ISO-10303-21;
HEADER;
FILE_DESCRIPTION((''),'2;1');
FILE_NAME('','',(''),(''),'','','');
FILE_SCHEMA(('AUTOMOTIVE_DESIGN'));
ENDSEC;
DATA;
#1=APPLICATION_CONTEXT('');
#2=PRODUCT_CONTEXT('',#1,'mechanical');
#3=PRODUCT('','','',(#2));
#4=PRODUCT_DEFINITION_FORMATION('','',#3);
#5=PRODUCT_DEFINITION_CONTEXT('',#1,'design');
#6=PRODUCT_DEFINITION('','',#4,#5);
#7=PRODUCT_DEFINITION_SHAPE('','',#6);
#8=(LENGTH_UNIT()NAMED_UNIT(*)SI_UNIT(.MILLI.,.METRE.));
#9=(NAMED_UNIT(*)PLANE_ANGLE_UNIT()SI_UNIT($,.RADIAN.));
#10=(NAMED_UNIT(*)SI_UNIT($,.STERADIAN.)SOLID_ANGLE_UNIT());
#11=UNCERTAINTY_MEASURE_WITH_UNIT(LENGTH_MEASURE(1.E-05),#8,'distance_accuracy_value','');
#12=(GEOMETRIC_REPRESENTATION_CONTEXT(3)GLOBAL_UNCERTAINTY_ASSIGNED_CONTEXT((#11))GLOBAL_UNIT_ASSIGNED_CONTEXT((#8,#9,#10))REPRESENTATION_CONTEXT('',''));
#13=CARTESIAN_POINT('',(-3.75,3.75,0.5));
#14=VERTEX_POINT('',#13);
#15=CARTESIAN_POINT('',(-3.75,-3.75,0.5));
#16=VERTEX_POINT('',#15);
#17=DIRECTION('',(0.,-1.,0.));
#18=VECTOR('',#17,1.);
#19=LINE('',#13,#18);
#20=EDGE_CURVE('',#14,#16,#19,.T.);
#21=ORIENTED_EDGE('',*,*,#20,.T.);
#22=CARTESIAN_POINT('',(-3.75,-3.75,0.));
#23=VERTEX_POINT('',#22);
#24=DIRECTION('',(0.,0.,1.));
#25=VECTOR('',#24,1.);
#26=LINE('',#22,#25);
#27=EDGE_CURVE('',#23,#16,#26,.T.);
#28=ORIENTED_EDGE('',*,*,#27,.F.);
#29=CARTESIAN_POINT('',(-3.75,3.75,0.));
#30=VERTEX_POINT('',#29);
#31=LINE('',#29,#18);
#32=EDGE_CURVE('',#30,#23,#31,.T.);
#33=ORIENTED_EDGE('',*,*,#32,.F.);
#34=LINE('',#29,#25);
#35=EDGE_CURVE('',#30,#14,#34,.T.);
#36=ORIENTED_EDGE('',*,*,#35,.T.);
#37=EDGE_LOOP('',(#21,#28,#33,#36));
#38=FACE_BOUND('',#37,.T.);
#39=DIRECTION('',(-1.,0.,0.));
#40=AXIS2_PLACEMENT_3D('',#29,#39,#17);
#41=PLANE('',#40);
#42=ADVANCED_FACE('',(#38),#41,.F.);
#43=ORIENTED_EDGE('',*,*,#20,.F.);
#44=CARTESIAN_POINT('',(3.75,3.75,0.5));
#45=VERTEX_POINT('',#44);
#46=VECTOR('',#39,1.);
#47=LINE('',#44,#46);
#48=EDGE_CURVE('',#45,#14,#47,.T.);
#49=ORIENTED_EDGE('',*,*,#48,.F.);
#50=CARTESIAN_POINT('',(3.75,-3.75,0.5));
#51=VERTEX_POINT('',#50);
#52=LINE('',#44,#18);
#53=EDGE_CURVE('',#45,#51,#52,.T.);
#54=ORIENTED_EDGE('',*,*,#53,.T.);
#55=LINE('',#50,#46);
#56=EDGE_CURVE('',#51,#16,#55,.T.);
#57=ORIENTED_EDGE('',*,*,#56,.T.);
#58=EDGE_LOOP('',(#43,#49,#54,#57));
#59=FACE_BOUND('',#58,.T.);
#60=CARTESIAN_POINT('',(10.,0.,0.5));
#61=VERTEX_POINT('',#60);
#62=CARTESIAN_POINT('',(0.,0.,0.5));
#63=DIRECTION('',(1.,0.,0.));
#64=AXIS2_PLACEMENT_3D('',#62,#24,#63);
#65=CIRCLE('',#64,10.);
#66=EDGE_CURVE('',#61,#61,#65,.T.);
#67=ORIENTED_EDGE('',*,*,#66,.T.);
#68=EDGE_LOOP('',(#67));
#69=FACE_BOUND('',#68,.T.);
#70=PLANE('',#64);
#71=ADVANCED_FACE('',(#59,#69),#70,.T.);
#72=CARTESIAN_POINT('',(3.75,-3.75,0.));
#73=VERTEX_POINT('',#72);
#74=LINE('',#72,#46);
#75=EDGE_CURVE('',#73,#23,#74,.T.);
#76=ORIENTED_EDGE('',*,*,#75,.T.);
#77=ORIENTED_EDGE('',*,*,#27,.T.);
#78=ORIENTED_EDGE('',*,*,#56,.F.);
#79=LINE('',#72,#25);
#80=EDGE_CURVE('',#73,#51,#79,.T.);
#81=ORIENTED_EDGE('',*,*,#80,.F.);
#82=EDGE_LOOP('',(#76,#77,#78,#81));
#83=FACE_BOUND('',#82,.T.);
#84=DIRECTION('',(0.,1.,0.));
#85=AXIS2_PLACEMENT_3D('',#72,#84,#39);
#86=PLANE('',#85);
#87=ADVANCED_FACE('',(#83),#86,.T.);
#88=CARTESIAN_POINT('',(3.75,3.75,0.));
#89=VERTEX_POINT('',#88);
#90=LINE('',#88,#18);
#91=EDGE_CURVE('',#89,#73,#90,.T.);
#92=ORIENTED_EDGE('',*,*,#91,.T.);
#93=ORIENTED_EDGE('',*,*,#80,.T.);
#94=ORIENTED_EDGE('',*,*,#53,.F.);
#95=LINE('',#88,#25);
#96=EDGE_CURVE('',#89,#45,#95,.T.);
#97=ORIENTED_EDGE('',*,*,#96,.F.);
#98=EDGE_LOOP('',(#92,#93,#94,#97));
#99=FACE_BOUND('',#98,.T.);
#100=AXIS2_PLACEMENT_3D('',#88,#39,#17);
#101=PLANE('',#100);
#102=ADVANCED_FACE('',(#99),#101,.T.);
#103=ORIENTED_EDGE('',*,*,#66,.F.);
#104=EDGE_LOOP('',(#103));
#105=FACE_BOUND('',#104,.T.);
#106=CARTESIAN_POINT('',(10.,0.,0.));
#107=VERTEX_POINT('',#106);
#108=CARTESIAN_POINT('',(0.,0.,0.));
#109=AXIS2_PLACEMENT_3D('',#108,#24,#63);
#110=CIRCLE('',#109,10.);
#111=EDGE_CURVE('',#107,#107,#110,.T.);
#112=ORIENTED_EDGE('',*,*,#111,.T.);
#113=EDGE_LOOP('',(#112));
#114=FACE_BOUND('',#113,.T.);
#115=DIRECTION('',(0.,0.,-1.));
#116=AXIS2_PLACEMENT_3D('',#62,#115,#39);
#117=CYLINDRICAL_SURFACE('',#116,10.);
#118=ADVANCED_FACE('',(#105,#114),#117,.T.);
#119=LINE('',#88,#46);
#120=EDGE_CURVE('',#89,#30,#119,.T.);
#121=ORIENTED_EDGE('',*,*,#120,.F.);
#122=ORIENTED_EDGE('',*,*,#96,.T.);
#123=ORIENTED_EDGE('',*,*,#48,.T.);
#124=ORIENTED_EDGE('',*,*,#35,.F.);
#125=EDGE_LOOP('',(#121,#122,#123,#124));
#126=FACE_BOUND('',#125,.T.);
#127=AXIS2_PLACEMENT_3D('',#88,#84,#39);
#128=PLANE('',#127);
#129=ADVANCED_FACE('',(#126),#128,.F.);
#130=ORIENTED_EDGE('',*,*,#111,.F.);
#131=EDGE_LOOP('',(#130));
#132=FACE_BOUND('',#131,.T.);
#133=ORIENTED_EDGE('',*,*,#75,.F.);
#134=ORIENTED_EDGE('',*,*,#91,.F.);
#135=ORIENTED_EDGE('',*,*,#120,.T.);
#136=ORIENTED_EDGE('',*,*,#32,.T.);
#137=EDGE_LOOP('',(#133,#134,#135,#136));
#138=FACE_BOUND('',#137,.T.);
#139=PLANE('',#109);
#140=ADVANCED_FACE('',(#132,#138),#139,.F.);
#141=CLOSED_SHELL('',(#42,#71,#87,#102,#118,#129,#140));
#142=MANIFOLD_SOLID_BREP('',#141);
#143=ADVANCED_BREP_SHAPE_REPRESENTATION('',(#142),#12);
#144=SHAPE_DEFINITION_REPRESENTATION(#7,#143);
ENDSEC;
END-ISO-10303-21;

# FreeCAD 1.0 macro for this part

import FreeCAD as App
import Part
import Sketcher

V = App.Vector


def add_polygon(sketch, points):
    """Adds a closed chain of lines whose ends are joined by coincident constraints."""
    first, n = sketch.GeometryCount, len(points)
    for a, b in zip(points, points[1:] + points[:1]):
        sketch.addGeometry(Part.LineSegment(App.Vector(*a, 0), App.Vector(*b, 0)), False)
    for i in range(n):
        sketch.addConstraint(Sketcher.Constraint("Coincident", first + i, 2, first + (i + 1) % n, 1))

doc = App.newDocument("Part")
params = doc.addObject("Spreadsheet::Sheet", "Params")
for row, (alias, value) in enumerate([
    ("sketch1_diameter", "20 mm"),
    ("pad1_length", "0.5 mm"),
    ("sketch2_width", "7.5 mm"),
    ("sketch3_width", "7.5 mm"),
], start=1):
    params.set(f"A{row}", alias)
    params.set(f"B{row}", "=" + value)
    params.setAlias(f"B{row}", alias)

body = doc.addObject("PartDesign::Body", "Body")

sketch1 = body.newObject("Sketcher::SketchObject", "Sketch")
sketch1.AttachmentSupport = (doc.getObject("XY_Plane"), [""])
sketch1.MapMode = "FlatFace"
sketch1.addGeometry(Part.Circle(V(0, 0, 0), V(0, 0, 1), 10), False)
sketch1.addConstraint([
    Sketcher.Constraint("Coincident", 0, 3, -1, 1),
    Sketcher.Constraint("Diameter", 0, 20.0),
])
sketch1.setExpression("Constraints[1]", "Params.sketch1_diameter")
pad1 = body.newObject("PartDesign::Pad", "Pad")
pad1.Profile = sketch1
pad1.setExpression("Length", "Params.pad1_length")

sketch2 = body.newObject("Sketcher::SketchObject", "Sketch001")
sketch2.AttachmentSupport = (doc.getObject("XY_Plane"), [""])
sketch2.MapMode = "FlatFace"
sketch2.AttachmentOffset = App.Placement(V(0, 0, 0.5), App.Rotation())
add_polygon(sketch2, [(-3.75, 3.75), (-3.75, -3.75), (3.75, -3.75), (3.75, 3.75)])
sketch2.addConstraint([
    Sketcher.Constraint("Vertical", 0),
    Sketcher.Constraint("Horizontal", 1),
    Sketcher.Constraint("Vertical", 2),
    Sketcher.Constraint("Horizontal", 3),
    Sketcher.Constraint("Symmetric", 0, 2, 2, 2, -1, 1),
    Sketcher.Constraint("Equal", 3, 0),
    Sketcher.Constraint("DistanceX", 1, 1, 1, 2, 7.5),
])
sketch2.setExpression("Constraints[10]", "Params.sketch2_width")
pad2 = body.newObject("PartDesign::Pad", "Pad001")
pad2.Profile = sketch2
pad2.Type = "UpToLast"
pad2.Reversed = True

sketch3 = body.newObject("Sketcher::SketchObject", "Sketch002")
sketch3.AttachmentSupport = (doc.getObject("XY_Plane"), [""])
sketch3.MapMode = "FlatFace"
sketch3.AttachmentOffset = App.Placement(V(0, 0, 0.5), App.Rotation())
add_polygon(sketch3, [(-3.75, 3.75), (-3.75, -3.75), (3.75, -3.75), (3.75, 3.75)])
sketch3.addConstraint([
    Sketcher.Constraint("Vertical", 0),
    Sketcher.Constraint("Horizontal", 1),
    Sketcher.Constraint("Vertical", 2),
    Sketcher.Constraint("Horizontal", 3),
    Sketcher.Constraint("Symmetric", 0, 2, 2, 2, -1, 1),
    Sketcher.Constraint("Equal", 3, 0),
    Sketcher.Constraint("DistanceX", 1, 1, 1, 2, 7.5),
])
sketch3.setExpression("Constraints[10]", "Params.sketch3_width")
pocket1 = body.newObject("PartDesign::Pocket", "Pocket")
pocket1.Profile = sketch3
pocket1.Type = "ThroughAll"

doc.recompute()
